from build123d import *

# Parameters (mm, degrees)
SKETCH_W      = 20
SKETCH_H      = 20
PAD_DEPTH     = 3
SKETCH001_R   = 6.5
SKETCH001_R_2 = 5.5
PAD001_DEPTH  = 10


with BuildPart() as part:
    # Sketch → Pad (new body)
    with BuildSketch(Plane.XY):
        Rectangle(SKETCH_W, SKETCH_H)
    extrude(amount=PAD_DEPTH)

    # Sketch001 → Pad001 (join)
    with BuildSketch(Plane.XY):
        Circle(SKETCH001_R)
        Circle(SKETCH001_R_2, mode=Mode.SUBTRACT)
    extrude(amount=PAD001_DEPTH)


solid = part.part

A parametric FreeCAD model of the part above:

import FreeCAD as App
import Part
import Sketcher
from FreeCAD import Vector
Q = App.Units.Quantity


def add_polygon(sketch, points):
    """Adds a closed chain of lines whose ends are joined by coincident constraints."""
    first, n = sketch.GeometryCount, len(points)
    for a, b in zip(points, points[1:] + points[:1]):
        sketch.addGeometry(Part.LineSegment(App.Vector(*a, 0), App.Vector(*b, 0)), False)
    for i in range(n):
        sketch.addConstraint(Sketcher.Constraint("Coincident", first + i, 2, first + (i + 1) % n, 1))

doc = App.newDocument("Part")
body = doc.addObject("PartDesign::Body", "Body")

# Sketch on XY plane
sketch1 = body.newObject("Sketcher::SketchObject", "Sketch")
sketch1.AttachmentSupport = (doc.getObject("XY_Plane"), [""])
sketch1.MapMode = "FlatFace"
add_polygon(sketch1, [(-10, 10), (-10, -10), (10, -10), (10, 10)])  # lines 0-3
sketch1.addConstraint([
    Sketcher.Constraint("Vertical", 0),
    Sketcher.Constraint("Horizontal", 1),
    Sketcher.Constraint("Vertical", 2),
    Sketcher.Constraint("Horizontal", 3),
    Sketcher.Constraint("Symmetric", 0, 2, 2, 2, -1, 1),
    Sketcher.Constraint("Equal", 3, 0),
    Sketcher.Constraint("DistanceX", 1, 1, 1, 2, Q("20 mm")),
])
pad1 = body.newObject("PartDesign::Pad", "Pad")
pad1.Profile = sketch1
pad1.Length = 3

# Sketch on XY plane
sketch2 = body.newObject("Sketcher::SketchObject", "Sketch001")
sketch2.AttachmentSupport = (doc.getObject("XY_Plane"), [""])
sketch2.MapMode = "FlatFace"
sketch2.addGeometry([
    Part.Circle(Vector(0, 0, 0), Vector(0, 0, 1), 6),
    Part.Circle(Vector(0, 0, 0), Vector(0, 0, 1), 6),
], False)
sketch2.addConstraint([
    Sketcher.Constraint("Coincident", 0, 3, -1, 1),
    Sketcher.Constraint("Coincident", 1, 3, -1, 1),
    Sketcher.Constraint("Diameter", 0, Q("13 mm")),
    Sketcher.Constraint("Diameter", 1, Q("11 mm")),
])
pad2 = body.newObject("PartDesign::Pad", "Pad001")
pad2.Profile = sketch2
pad2.Length = 10

doc.recompute()
